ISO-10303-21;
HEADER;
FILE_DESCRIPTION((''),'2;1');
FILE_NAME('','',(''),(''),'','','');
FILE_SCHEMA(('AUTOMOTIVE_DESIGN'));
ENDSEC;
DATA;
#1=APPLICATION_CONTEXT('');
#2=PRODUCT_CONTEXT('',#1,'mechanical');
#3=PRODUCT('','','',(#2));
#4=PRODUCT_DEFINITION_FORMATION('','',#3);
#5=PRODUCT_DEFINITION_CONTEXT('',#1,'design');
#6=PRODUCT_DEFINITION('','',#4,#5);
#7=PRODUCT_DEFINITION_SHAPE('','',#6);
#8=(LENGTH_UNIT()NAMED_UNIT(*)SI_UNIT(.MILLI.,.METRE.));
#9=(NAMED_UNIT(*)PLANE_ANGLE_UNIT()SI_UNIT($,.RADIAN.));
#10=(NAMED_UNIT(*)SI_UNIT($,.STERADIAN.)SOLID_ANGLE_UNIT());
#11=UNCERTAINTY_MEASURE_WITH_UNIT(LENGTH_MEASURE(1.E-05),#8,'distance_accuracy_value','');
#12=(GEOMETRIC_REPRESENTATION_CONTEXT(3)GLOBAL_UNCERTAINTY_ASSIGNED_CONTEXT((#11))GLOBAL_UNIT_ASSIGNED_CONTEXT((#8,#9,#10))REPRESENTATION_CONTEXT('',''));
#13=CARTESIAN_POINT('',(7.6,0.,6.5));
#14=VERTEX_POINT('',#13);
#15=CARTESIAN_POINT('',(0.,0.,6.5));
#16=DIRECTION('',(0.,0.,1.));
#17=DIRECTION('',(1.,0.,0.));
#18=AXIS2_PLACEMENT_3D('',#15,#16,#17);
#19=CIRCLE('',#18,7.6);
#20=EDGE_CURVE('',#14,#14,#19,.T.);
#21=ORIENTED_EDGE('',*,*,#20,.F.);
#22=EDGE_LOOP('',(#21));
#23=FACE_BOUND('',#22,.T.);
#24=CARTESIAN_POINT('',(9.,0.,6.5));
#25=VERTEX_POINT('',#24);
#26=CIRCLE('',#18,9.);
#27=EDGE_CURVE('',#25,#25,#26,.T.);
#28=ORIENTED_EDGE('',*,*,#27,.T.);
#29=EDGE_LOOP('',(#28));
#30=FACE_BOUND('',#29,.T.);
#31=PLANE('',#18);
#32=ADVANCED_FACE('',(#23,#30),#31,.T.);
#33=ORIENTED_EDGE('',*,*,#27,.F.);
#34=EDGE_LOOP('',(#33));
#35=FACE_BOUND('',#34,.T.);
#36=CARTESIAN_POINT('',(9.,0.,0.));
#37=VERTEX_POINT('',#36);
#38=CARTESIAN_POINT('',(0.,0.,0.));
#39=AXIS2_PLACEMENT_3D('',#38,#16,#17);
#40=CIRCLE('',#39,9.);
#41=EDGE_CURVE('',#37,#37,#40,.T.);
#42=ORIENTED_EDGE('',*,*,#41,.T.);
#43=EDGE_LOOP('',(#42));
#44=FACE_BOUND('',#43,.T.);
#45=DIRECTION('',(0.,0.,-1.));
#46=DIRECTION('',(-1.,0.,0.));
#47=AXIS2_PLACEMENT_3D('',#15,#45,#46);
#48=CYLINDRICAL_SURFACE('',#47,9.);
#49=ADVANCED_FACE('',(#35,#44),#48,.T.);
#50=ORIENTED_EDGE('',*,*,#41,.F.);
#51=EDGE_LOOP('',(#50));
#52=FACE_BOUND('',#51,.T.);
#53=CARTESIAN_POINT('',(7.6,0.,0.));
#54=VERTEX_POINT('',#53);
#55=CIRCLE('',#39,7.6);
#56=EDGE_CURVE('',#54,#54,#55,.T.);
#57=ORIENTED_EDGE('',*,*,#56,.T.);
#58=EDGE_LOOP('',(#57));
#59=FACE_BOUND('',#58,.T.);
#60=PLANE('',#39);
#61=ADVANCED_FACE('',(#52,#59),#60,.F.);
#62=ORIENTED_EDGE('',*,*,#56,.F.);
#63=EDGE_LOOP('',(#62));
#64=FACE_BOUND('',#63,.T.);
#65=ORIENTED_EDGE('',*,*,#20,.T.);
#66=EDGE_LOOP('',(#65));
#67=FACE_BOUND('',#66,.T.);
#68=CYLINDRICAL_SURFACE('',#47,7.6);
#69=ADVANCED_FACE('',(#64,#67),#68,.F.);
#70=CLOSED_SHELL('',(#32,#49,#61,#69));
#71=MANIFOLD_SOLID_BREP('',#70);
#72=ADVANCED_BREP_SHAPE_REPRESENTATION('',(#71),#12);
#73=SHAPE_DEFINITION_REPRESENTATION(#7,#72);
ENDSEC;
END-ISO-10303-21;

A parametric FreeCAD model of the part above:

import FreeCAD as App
import Part
import Sketcher
from FreeCAD import Vector

doc = App.newDocument("Part")
params = doc.addObject("Spreadsheet::Sheet", "Params")
for row, (alias, value) in enumerate([
    ("sketch1_diameter", "18 mm"),
    ("sketch1_diameter2", "15.2 mm"),
    ("pad1_length", "6.5 mm"),
], start=1):
    params.set(f"A{row}", alias)
    params.set(f"B{row}", "=" + value)
    params.setAlias(f"B{row}", alias)

body = doc.addObject("PartDesign::Body", "Body")

sketch1 = body.newObject("Sketcher::SketchObject", "Sketch")
sketch1.AttachmentSupport = (doc.getObject("XY_Plane"), [""])
sketch1.MapMode = "FlatFace"
sketch1.addGeometry(Part.Circle(Vector(0, 0, 0), Vector(0, 0, 1), 9), False)
sketch1.addGeometry(Part.Circle(Vector(0, 0, 0), Vector(0, 0, 1), 8), False)
sketch1.addConstraint(Sketcher.Constraint("Coincident", 0, 3, -1, 1))
sketch1.addConstraint(Sketcher.Constraint("Coincident", 1, 3, -1, 1))
sketch1.addConstraint(Sketcher.Constraint("Diameter", 0, 18.0))
sketch1.addConstraint(Sketcher.Constraint("Diameter", 1, 15.2))
sketch1.setExpression("Constraints[2]", "Params.sketch1_diameter")
sketch1.setExpression("Constraints[3]", "Params.sketch1_diameter2")
pad1 = body.newObject("PartDesign::Pad", "Pad")
pad1.Profile = sketch1
pad1.setExpression("Length", "Params.pad1_length")

doc.recompute()
